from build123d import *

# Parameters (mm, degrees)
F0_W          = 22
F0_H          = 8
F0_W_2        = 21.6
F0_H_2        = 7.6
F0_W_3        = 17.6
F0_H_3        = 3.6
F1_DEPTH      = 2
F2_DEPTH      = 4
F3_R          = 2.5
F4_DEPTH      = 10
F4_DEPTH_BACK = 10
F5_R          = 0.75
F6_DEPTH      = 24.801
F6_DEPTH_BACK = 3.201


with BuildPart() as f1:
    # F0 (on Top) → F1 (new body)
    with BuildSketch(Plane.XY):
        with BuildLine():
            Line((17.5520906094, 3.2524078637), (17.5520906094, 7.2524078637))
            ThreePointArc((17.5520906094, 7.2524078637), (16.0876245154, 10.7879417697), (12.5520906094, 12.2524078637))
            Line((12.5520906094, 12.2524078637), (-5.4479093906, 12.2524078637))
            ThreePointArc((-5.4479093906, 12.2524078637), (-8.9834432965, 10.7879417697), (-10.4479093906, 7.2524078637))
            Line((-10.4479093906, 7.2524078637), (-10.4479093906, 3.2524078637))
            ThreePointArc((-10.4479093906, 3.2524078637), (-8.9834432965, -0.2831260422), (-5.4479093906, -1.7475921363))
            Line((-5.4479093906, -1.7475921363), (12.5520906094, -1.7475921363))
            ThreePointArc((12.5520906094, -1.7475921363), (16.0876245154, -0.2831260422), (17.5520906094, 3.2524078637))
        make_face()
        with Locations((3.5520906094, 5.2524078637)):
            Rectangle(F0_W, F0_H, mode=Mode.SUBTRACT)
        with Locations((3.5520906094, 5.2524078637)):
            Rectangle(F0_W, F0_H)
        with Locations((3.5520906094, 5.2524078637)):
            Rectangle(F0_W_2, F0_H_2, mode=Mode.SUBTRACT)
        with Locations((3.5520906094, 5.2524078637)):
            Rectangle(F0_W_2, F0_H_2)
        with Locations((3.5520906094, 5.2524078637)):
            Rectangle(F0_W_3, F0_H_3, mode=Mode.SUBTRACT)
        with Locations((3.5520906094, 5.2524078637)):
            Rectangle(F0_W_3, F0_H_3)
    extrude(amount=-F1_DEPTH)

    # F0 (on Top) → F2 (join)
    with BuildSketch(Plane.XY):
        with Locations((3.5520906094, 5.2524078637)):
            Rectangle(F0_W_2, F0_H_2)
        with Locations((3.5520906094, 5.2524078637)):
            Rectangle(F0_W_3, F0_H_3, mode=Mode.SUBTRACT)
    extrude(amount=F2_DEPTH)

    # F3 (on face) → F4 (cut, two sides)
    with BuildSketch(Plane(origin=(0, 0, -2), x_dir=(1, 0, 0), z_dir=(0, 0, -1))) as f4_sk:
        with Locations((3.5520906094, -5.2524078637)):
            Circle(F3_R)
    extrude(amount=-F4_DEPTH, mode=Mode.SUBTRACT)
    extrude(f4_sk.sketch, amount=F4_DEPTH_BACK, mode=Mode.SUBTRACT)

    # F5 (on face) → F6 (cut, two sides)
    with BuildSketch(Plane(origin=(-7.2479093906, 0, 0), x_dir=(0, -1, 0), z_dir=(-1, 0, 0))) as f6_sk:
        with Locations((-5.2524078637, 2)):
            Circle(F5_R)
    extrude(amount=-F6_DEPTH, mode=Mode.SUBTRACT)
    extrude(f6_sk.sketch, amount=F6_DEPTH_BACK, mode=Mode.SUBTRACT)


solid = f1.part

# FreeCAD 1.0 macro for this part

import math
import FreeCAD as App
import Part
import Sketcher


def add_polygon(sketch, points):
    """Adds a closed chain of lines whose ends are joined by coincident constraints."""
    first, n = sketch.GeometryCount, len(points)
    for a, b in zip(points, points[1:] + points[:1]):
        sketch.addGeometry(Part.LineSegment(App.Vector(*a, 0), App.Vector(*b, 0)), False)
    for i in range(n):
        sketch.addConstraint(Sketcher.Constraint("Coincident", first + i, 2, first + (i + 1) % n, 1))

doc = App.newDocument("Part")
params = doc.addObject("Spreadsheet::Sheet", "Params")
for row, (alias, value) in enumerate([
    ("sketch1_radius", "5 mm"),
    ("sketch1_width", "18 mm"),
    ("sketch1_height", "4 mm"),
    ("pad1_length", "2 mm"),
    ("sketch2_width", "21.6 mm"),
    ("sketch2_width2", "17.6 mm"),
    ("sketch2_height", "7.6 mm"),
    ("sketch2_height2", "3.6 mm"),
    ("pad2_length", "4 mm"),
    ("sketch3_diameter", "5 mm"),
    ("sketch4_diameter", "1.5 mm"),
], start=1):
    params.set(f"A{row}", alias)
    params.set(f"B{row}", "=" + value)
    params.setAlias(f"B{row}", alias)

body = doc.addObject("PartDesign::Body", "Body")

# Sketch on XY plane
sketch1 = body.newObject("Sketcher::SketchObject", "Sketch")
sketch1.AttachmentSupport = (doc.getObject("XY_Plane"), [""])
sketch1.MapMode = "FlatFace"
sketch1.addGeometry([
    Part.LineSegment(App.Vector(17.6, 3.3, 0), App.Vector(17.6, 7.3, 0)),  # 0
    Part.ArcOfCircle(Part.Circle(App.Vector(12.6, 7.3, 0), App.Vector(0, 0, 1), 5), math.radians(0), math.radians(90)),  # 1
    Part.LineSegment(App.Vector(12.6, 12.3, 0), App.Vector(-5.4, 12.3, 0)),  # 2
    Part.ArcOfCircle(Part.Circle(App.Vector(-5.4, 7.3, 0), App.Vector(0, 0, 1), 5), math.radians(90), math.radians(180)),  # 3
    Part.LineSegment(App.Vector(-10.4, 7.3, 0), App.Vector(-10.4, 3.3, 0)),  # 4
    Part.ArcOfCircle(Part.Circle(App.Vector(-5.4, 3.3, 0), App.Vector(0, 0, 1), 5), math.radians(180), math.radians(270)),  # 5
    Part.LineSegment(App.Vector(-5.4, -1.7, 0), App.Vector(12.6, -1.7, 0)),  # 6
    Part.ArcOfCircle(Part.Circle(App.Vector(12.6, 3.3, 0), App.Vector(0, 0, 1), 5), math.radians(-90), math.radians(0)),  # 7
], False)
sketch1.addConstraint([
    Sketcher.Constraint("Tangent", 0, 2, 1, 1),
    Sketcher.Constraint("Tangent", 1, 2, 2, 1),
    Sketcher.Constraint("Tangent", 2, 2, 3, 1),
    Sketcher.Constraint("Tangent", 3, 2, 4, 1),
    Sketcher.Constraint("Tangent", 4, 2, 5, 1),
    Sketcher.Constraint("Tangent", 5, 2, 6, 1),
    Sketcher.Constraint("Tangent", 6, 2, 7, 1),
    Sketcher.Constraint("Tangent", 7, 2, 0, 1),
    Sketcher.Constraint("Vertical", 0),
    Sketcher.Constraint("Horizontal", 2),
    Sketcher.Constraint("Vertical", 4),
    Sketcher.Constraint("Horizontal", 6),
    Sketcher.Constraint("Equal", 1, 3),
    Sketcher.Constraint("Equal", 3, 5),
    Sketcher.Constraint("Equal", 5, 7),
    Sketcher.Constraint("Radius", 1, 5.0),
    Sketcher.Constraint("DistanceX", 2, 2, 2, 1, 18.0),
    Sketcher.Constraint("DistanceY", 0, 1, 0, 2, 4.0),
    Sketcher.Constraint("DistanceX", -1, 1, 1, 3, 12.552091),
    Sketcher.Constraint("DistanceY", -1, 1, 1, 3, 7.252408),
])
sketch1.setExpression("Constraints[15]", "Params.sketch1_radius")
sketch1.setExpression("Constraints[16]", "Params.sketch1_width")
sketch1.setExpression("Constraints[17]", "Params.sketch1_height")
pad1 = body.newObject("PartDesign::Pad", "Pad")
pad1.Profile = sketch1
pad1.setExpression("Length", "Params.pad1_length")
pad1.Reversed = True

# Sketch on XY plane
sketch2 = body.newObject("Sketcher::SketchObject", "Sketch001")
sketch2.AttachmentSupport = (doc.getObject("XY_Plane"), [""])
sketch2.MapMode = "FlatFace"
add_polygon(sketch2, [(-7.2, 9.1), (-7.2, 1.5), (14.4, 1.5), (14.4, 9.1)])  # lines 0-3
add_polygon(sketch2, [(12.4, 3.5), (-5.2, 3.5), (-5.2, 7.1), (12.4, 7.1)])  # lines 4-7
sketch2.addConstraint([
    Sketcher.Constraint("Vertical", 0),
    Sketcher.Constraint("Horizontal", 1),
    Sketcher.Constraint("Vertical", 2),
    Sketcher.Constraint("Horizontal", 3),
    Sketcher.Constraint("Horizontal", 4),
    Sketcher.Constraint("Vertical", 5),
    Sketcher.Constraint("Horizontal", 6),
    Sketcher.Constraint("Vertical", 7),
    Sketcher.Constraint("DistanceX", 1, 1, 1, 2, 21.6),
    Sketcher.Constraint("DistanceX", 4, 2, 4, 1, 17.6),
    Sketcher.Constraint("DistanceY", 0, 2, 0, 1, 7.6),
    Sketcher.Constraint("DistanceY", 5, 1, 5, 2, 3.6),
    Sketcher.Constraint("DistanceX", 0, 2, 4, 2, 2.0),
    Sketcher.Constraint("DistanceY", 0, 2, 4, 2, 2.0),
    Sketcher.Constraint("DistanceX", 0, 2, -1, 1, 7.247909),
    Sketcher.Constraint("DistanceY", -1, 1, 0, 2, 1.452408),
])
sketch2.setExpression("Constraints[16]", "Params.sketch2_width")
sketch2.setExpression("Constraints[17]", "Params.sketch2_width2")
sketch2.setExpression("Constraints[18]", "Params.sketch2_height")
sketch2.setExpression("Constraints[19]", "Params.sketch2_height2")
pad2 = body.newObject("PartDesign::Pad", "Pad001")
pad2.Profile = sketch2
pad2.setExpression("Length", "Params.pad2_length")

# Sketch on XY plane
sketch3 = body.newObject("Sketcher::SketchObject", "Sketch002")
sketch3.AttachmentSupport = (doc.getObject("XY_Plane"), [""])
sketch3.MapMode = "FlatFace"
sketch3.AttachmentOffset = App.Placement(App.Vector(0, 0, -2), App.Rotation())
sketch3.addGeometry(Part.Circle(App.Vector(3.6, 5.3, 0), App.Vector(0, 0, 1), 2.5), False)
sketch3.addConstraint([
    Sketcher.Constraint("Diameter", 0, 5.0),
    Sketcher.Constraint("DistanceX", -1, 1, 0, 3, 3.552091),
    Sketcher.Constraint("DistanceY", -1, 1, 0, 3, 5.252408),
])
sketch3.setExpression("Constraints[0]", "Params.sketch3_diameter")
pocket1 = body.newObject("PartDesign::Pocket", "Pocket")
pocket1.Profile = sketch3
pocket1.Type = "ThroughAll"
pocket1.Midplane = True

# Sketch on YZ plane
sketch4 = body.newObject("Sketcher::SketchObject", "Sketch003")
sketch4.AttachmentSupport = (doc.getObject("YZ_Plane"), [""])
sketch4.MapMode = "FlatFace"
sketch4.AttachmentOffset = App.Placement(App.Vector(0, 0, -7.247909), App.Rotation())
sketch4.addGeometry(Part.Circle(App.Vector(5.3, 2, 0), App.Vector(0, 0, 1), 0.8), False)
sketch4.addConstraint([
    Sketcher.Constraint("Diameter", 0, 1.5),
    Sketcher.Constraint("DistanceY", -1, 1, 0, 3, 2.0),
    Sketcher.Constraint("DistanceX", -1, 1, 0, 3, 5.252408),
])
sketch4.setExpression("Constraints[0]", "Params.sketch4_diameter")
pocket2 = body.newObject("PartDesign::Pocket", "Pocket001")
pocket2.Profile = sketch4
pocket2.Type = "ThroughAll"
pocket2.Midplane = True

doc.recompute()
